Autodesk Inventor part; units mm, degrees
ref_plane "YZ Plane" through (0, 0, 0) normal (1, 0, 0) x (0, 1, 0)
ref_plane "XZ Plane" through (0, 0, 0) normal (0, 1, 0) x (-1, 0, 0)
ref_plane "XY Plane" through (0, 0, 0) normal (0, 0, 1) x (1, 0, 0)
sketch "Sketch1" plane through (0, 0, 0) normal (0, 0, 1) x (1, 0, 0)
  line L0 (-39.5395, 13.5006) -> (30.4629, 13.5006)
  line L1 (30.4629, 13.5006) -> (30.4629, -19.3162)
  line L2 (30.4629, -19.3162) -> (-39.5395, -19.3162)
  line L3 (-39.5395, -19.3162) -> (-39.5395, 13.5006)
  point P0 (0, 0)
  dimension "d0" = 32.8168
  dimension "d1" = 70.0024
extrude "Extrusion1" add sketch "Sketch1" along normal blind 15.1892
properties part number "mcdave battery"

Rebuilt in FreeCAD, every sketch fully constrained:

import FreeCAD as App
import Part
import Sketcher
Q = App.Units.Quantity

doc = App.newDocument("Part")
body = doc.addObject("PartDesign::Body", "Body")

# Sketch on XY plane
sketch1 = body.newObject("Sketcher::SketchObject", "Sketch")
sketch1.AttachmentSupport = (doc.getObject("XY_Plane"), [""])
sketch1.MapMode = "FlatFace"
sketch1.addGeometry([
    Part.LineSegment(App.Vector(30, 14, 0), App.Vector(-40, 14, 0)),
    Part.LineSegment(App.Vector(-40, 14, 0), App.Vector(-40, -19, 0)),
    Part.LineSegment(App.Vector(-40, -19, 0), App.Vector(30, -19, 0)),
    Part.LineSegment(App.Vector(30, -19, 0), App.Vector(30, 14, 0)),
], False)
sketch1.addConstraint([
    Sketcher.Constraint("Coincident", 0, 2, 1, 1),
    Sketcher.Constraint("Coincident", 1, 2, 2, 1),
    Sketcher.Constraint("Coincident", 2, 2, 3, 1),
    Sketcher.Constraint("Coincident", 3, 2, 0, 1),
    Sketcher.Constraint("Horizontal", 0),
    Sketcher.Constraint("Vertical", 1),
    Sketcher.Constraint("Horizontal", 2),
    Sketcher.Constraint("Vertical", 3),
    Sketcher.Constraint("DistanceX", 0, 2, 0, 1, Q("2.756 in")),
    Sketcher.Constraint("DistanceY", 1, 2, 1, 1, Q("1.292 in")),
    Sketcher.Constraint("DistanceX", 0, 2, -1, 1, Q("39.5395 mm")),
    Sketcher.Constraint("DistanceY", -1, 1, 0, 2, Q("13.5006 mm")),
])
pad1 = body.newObject("PartDesign::Pad", "Pad")
pad1.Profile = sketch1
pad1.Length = Q("0.598 in")

doc.recompute()
